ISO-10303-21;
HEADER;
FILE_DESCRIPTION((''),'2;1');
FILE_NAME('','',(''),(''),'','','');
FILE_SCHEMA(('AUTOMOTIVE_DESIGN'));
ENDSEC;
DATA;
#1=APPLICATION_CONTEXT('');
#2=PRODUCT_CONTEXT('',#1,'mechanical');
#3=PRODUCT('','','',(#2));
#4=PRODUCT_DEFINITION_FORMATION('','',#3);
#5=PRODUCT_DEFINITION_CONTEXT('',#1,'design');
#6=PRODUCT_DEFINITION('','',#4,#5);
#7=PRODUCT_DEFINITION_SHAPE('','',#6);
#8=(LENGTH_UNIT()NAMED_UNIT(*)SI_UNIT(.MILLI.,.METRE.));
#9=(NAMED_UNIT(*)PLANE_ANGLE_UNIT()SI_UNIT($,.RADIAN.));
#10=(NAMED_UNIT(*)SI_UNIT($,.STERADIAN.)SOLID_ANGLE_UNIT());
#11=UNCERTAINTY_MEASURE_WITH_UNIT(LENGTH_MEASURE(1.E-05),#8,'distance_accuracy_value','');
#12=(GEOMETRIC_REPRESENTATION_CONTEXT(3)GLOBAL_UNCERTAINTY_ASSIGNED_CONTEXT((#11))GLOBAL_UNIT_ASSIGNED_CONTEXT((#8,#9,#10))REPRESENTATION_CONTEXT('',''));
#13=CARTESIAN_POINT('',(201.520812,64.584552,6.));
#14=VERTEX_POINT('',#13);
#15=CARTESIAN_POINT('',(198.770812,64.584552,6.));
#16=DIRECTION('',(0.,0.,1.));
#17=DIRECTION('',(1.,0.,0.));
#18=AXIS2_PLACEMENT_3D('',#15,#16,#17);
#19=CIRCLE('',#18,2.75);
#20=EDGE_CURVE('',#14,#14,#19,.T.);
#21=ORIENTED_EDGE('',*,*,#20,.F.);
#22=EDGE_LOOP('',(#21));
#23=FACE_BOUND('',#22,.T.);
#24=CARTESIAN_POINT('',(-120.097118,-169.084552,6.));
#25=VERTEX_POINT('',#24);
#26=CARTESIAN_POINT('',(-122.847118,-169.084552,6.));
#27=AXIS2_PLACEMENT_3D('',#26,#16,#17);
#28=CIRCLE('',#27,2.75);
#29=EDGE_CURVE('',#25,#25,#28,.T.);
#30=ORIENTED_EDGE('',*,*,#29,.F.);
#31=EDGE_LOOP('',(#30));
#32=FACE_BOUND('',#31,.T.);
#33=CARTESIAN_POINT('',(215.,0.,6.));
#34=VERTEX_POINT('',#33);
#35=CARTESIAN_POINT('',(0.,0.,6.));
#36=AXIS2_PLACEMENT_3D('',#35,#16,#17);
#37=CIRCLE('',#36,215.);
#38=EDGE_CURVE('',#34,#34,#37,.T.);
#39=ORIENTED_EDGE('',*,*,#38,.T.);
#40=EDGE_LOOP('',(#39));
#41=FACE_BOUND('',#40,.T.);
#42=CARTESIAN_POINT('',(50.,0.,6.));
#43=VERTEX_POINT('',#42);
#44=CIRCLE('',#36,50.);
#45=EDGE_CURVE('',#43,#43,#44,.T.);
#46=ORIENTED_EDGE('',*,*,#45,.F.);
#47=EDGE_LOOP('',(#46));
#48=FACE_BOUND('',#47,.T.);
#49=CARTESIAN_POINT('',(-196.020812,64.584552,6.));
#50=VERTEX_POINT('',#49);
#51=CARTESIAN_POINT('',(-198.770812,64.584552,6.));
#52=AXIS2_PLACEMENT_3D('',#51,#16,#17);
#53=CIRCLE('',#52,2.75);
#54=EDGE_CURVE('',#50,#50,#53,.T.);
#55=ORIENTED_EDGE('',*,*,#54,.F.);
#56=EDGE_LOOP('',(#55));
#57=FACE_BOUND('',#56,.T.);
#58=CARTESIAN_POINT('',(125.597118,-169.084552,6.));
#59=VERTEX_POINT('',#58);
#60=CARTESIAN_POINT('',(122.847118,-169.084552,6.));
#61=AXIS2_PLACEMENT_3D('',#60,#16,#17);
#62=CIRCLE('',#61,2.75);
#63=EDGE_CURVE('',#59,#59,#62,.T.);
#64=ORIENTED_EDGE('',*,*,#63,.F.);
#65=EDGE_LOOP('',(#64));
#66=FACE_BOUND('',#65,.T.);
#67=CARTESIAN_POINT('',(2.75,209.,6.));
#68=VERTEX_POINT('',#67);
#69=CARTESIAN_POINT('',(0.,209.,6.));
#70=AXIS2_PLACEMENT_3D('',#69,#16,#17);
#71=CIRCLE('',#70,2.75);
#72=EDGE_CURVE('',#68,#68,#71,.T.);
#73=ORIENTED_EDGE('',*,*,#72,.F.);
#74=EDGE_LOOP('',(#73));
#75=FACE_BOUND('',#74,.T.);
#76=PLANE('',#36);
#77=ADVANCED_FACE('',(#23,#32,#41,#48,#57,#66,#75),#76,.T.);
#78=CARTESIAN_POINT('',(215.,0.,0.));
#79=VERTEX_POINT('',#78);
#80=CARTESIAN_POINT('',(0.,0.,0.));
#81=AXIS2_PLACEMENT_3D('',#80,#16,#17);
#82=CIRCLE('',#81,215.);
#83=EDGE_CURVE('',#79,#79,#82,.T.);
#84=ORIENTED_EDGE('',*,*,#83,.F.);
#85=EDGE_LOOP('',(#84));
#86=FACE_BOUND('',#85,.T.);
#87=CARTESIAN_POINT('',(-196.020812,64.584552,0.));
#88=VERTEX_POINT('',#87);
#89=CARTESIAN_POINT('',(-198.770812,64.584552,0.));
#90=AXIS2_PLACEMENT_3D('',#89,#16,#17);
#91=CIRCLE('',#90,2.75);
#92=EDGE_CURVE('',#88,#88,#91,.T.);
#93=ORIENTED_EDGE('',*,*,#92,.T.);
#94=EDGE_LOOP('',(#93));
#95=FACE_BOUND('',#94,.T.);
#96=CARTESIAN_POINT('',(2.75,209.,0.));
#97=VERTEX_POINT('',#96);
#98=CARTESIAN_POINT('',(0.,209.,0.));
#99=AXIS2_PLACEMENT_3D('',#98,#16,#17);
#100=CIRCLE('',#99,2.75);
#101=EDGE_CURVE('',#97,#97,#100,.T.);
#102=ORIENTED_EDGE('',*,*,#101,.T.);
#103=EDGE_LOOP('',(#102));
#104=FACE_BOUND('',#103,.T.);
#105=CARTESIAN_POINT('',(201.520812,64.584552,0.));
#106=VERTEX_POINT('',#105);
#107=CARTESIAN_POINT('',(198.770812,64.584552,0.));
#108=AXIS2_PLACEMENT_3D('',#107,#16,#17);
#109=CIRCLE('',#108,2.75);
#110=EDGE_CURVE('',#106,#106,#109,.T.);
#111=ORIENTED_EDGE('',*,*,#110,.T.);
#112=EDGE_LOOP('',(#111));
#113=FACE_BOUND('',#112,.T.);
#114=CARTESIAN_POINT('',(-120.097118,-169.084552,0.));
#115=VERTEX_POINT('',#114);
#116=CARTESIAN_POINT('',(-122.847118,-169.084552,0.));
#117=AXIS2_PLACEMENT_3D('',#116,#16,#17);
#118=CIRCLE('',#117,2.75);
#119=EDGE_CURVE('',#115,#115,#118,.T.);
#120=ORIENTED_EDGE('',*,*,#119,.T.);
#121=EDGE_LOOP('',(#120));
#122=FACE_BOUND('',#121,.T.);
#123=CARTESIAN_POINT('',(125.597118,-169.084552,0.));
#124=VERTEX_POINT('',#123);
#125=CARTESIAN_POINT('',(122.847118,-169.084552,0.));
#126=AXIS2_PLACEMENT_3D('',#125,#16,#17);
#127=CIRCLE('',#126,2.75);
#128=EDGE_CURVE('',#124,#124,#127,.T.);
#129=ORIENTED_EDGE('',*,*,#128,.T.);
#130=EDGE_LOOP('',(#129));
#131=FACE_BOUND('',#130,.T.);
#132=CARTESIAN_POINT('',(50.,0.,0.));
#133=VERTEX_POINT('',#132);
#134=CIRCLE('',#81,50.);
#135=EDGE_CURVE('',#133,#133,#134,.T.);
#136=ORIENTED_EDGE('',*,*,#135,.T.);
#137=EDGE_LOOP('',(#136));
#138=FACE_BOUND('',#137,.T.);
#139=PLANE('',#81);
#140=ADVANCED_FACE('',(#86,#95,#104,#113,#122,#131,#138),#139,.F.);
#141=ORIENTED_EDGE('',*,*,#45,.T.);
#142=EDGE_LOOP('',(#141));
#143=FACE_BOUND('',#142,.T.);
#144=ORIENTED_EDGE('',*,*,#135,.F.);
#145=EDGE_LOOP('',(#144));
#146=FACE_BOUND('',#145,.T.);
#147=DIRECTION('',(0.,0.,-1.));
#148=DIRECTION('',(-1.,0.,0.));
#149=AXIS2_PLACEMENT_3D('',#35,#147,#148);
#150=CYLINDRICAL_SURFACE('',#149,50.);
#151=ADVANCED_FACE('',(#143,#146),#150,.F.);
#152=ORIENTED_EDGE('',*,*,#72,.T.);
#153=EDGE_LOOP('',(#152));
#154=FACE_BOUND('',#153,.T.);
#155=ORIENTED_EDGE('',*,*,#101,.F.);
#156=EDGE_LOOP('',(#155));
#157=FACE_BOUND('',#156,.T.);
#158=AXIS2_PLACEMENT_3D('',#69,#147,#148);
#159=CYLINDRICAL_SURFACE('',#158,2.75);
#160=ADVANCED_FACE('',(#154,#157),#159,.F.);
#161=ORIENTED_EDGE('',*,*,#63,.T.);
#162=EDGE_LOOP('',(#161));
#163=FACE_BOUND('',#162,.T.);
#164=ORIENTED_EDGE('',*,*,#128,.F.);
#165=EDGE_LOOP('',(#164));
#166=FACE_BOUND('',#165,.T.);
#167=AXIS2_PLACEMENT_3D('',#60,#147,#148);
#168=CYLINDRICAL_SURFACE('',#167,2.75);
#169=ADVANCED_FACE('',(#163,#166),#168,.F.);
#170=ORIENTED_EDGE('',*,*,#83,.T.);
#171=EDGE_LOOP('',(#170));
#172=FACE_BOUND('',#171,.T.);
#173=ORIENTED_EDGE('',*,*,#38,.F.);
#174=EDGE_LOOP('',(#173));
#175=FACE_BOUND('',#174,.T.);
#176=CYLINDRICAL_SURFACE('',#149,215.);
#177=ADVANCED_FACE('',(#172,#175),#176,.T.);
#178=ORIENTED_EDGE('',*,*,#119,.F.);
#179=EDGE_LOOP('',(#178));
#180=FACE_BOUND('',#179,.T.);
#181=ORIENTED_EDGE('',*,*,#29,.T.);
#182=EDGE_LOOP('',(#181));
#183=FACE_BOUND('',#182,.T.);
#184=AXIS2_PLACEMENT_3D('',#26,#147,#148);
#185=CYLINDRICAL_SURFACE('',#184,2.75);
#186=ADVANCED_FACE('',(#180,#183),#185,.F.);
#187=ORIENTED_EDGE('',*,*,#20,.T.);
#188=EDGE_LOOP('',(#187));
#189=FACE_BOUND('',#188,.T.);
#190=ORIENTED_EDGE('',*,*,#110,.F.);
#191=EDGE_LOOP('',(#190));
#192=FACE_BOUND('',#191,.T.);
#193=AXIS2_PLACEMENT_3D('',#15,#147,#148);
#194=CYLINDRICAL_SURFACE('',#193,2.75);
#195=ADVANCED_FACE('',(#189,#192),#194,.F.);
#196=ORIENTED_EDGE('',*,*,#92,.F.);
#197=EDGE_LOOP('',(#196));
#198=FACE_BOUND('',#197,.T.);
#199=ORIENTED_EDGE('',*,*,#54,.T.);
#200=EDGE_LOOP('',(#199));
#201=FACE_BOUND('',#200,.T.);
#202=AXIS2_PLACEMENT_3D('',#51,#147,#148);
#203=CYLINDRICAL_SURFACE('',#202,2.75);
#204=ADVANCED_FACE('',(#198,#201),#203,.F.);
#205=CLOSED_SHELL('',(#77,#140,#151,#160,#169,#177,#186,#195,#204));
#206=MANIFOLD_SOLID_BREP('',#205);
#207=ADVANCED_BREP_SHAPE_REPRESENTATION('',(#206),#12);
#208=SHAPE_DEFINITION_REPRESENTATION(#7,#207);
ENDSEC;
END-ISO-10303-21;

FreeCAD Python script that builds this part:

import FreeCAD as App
import Part
import Sketcher

V = App.Vector
Q = App.Units.Quantity

doc = App.newDocument("Part")
body = doc.addObject("PartDesign::Body", "Body")

# Sketch on XY plane
sketch1 = body.newObject("Sketcher::SketchObject", "Sketch")
sketch1.AttachmentSupport = (doc.getObject("XY_Plane"), [""])
sketch1.MapMode = "FlatFace"
sketch1.addGeometry(Part.Circle(V(0, 0, 0), V(0, 0, 1), 215), False)
sketch1.addGeometry(Part.Circle(V(0, 0, 0), V(0, 0, 1), 50), False)
sketch1.addConstraint(Sketcher.Constraint("Coincident", 0, 3, -1, 1))
sketch1.addConstraint(Sketcher.Constraint("Coincident", 1, 3, -1, 1))
sketch1.addConstraint(Sketcher.Constraint("Diameter", 0, Q("430 mm")))
sketch1.addConstraint(Sketcher.Constraint("Diameter", 1, Q("100 mm")))
pad1 = body.newObject("PartDesign::Pad", "Pad")
pad1.Profile = sketch1
pad1.Length = 6

# Sketch on XY plane
sketch2 = body.newObject("Sketcher::SketchObject", "Sketch001")
sketch2.AttachmentSupport = (doc.getObject("XY_Plane"), [""])
sketch2.MapMode = "FlatFace"
sketch2.addGeometry(Part.Circle(V(198.770812, 64.584552, 0), V(0, 0, 1), 2.75), False)
sketch2.addGeometry(Part.Circle(V(0, 209, 0), V(0, 0, 1), 2.75), False)
sketch2.addGeometry(Part.Circle(V(-198.770812, 64.584552, 0), V(0, 0, 1), 2.75), False)
sketch2.addGeometry(Part.Circle(V(-122.847118, -169.084552, 0), V(0, 0, 1), 2.75), False)
sketch2.addGeometry(Part.Circle(V(122.847118, -169.084552, 0), V(0, 0, 1), 2.75), False)
sketch2.addConstraint(Sketcher.Constraint("Equal", 0, 1))
sketch2.addConstraint(Sketcher.Constraint("Equal", 1, 2))
sketch2.addConstraint(Sketcher.Constraint("Equal", 2, 3))
sketch2.addConstraint(Sketcher.Constraint("Equal", 3, 4))
sketch2.addConstraint(Sketcher.Constraint("Symmetric", 0, 3, 2, 3, -2))
sketch2.addConstraint(Sketcher.Constraint("Symmetric", 3, 3, 4, 3, -2))
sketch2.addConstraint(Sketcher.Constraint("PointOnObject", 1, 3, -2))
sketch2.addConstraint(Sketcher.Constraint("Diameter", 0, Q("5.5 mm")))
sketch2.addConstraint(Sketcher.Constraint("DistanceY", -1, 1, 1, 3, Q("209 mm")))
sketch2.addConstraint(Sketcher.Constraint("DistanceX", -1, 1, 0, 3, Q("198.770812 mm")))
sketch2.addConstraint(Sketcher.Constraint("DistanceY", -1, 1, 0, 3, Q("64.584552 mm")))
sketch2.addConstraint(Sketcher.Constraint("DistanceY", 3, 3, -1, 1, Q("169.084552 mm")))
sketch2.addConstraint(Sketcher.Constraint("DistanceX", 3, 3, 0, 3, Q("321.61793 mm")))
pocket1 = body.newObject("PartDesign::Pocket", "Pocket")
pocket1.Profile = sketch2
pocket1.Length = 6
pocket1.Reversed = True

doc.recompute()
